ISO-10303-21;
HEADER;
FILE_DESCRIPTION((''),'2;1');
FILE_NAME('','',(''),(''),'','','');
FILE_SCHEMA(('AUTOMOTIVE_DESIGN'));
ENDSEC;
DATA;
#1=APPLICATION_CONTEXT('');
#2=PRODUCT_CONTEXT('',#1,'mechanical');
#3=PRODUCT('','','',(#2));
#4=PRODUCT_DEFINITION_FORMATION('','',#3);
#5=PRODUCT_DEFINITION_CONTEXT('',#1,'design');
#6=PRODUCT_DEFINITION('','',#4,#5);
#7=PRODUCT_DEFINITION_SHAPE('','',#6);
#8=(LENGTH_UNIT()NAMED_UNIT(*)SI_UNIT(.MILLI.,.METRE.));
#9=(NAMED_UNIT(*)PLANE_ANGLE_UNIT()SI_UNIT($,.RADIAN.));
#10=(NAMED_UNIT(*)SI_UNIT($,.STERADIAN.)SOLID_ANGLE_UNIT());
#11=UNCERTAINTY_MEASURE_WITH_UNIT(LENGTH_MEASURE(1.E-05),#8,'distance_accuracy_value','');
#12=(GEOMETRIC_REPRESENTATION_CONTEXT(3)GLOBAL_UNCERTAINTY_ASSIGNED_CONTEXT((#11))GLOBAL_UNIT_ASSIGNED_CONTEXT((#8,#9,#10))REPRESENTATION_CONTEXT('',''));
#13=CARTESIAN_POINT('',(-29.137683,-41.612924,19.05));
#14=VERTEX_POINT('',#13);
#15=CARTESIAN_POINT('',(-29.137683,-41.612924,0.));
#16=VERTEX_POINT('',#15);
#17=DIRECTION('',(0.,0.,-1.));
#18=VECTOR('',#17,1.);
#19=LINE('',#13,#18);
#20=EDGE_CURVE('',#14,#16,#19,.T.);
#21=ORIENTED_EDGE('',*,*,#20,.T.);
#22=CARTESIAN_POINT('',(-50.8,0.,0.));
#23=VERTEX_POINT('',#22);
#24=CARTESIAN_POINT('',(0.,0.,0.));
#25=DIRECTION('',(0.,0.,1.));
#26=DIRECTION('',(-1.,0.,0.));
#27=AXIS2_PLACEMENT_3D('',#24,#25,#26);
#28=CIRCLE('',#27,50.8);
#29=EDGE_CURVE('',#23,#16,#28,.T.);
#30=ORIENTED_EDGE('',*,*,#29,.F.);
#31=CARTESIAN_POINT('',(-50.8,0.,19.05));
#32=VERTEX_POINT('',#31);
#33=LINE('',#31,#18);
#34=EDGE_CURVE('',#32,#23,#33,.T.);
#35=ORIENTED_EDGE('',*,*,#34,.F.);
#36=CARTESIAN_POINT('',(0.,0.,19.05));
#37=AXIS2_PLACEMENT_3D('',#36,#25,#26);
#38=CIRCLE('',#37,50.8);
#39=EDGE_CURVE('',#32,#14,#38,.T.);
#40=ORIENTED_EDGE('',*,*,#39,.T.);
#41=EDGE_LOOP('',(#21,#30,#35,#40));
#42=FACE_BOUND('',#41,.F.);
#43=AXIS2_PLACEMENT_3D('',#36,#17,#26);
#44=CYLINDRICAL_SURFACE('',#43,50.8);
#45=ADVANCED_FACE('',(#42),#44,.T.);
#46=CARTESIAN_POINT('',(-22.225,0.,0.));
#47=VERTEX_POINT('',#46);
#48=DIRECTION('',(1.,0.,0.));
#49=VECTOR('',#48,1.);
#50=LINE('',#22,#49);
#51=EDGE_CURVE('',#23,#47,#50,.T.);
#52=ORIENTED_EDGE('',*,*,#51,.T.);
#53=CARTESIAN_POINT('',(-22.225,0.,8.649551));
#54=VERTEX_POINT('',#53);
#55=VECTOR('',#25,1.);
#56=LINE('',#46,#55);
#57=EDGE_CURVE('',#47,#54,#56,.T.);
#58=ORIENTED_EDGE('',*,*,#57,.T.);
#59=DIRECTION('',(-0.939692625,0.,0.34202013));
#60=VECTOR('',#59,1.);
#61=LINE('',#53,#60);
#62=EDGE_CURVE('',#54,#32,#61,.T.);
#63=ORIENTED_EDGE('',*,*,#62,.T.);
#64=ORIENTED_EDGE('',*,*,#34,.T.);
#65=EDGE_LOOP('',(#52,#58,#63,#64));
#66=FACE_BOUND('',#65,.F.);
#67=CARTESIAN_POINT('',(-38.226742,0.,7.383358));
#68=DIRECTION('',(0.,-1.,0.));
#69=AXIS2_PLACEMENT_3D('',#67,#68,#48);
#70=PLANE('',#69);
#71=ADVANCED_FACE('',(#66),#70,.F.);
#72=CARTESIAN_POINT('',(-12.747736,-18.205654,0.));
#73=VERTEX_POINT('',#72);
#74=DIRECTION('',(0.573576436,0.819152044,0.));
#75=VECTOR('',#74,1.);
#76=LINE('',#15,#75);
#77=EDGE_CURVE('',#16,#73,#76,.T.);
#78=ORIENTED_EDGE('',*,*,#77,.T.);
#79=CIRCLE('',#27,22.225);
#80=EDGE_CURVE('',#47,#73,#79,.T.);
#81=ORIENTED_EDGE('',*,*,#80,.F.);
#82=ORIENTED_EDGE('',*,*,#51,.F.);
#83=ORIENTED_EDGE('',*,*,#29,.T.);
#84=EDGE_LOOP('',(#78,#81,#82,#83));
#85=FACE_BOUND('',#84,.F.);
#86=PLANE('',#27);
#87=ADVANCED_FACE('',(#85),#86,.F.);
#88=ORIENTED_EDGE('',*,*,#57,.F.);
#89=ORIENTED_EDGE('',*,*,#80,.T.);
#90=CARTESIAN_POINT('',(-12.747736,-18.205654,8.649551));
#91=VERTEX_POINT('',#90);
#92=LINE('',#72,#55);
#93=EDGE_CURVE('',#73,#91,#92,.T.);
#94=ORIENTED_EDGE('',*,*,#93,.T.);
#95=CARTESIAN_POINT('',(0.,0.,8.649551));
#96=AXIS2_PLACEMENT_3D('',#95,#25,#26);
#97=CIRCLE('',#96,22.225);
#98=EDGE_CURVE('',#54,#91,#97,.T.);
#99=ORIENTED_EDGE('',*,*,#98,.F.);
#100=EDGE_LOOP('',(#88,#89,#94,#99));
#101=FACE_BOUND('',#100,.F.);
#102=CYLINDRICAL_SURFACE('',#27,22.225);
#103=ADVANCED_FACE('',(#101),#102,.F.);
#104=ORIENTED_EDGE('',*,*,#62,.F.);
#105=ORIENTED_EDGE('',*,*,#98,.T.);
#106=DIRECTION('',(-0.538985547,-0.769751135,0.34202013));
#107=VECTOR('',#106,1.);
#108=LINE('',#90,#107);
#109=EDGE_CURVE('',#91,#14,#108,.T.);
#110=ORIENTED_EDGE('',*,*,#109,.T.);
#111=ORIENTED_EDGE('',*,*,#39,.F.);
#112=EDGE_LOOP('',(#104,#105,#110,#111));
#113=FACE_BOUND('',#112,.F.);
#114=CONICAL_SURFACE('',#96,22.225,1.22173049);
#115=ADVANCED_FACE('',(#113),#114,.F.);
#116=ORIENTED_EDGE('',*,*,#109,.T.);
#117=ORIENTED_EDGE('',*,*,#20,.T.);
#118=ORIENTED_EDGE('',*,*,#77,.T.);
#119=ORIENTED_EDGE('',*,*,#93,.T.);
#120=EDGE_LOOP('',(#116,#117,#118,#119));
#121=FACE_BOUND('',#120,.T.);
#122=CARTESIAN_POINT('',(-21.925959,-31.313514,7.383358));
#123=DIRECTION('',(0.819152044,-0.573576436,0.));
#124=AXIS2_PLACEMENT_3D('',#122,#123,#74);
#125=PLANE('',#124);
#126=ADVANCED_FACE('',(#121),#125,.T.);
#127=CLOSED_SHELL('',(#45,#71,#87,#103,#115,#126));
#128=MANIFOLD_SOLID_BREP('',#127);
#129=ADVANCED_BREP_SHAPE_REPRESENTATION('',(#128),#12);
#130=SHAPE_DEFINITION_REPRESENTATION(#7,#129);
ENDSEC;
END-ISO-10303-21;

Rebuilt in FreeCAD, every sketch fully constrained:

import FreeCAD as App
import Part
import Sketcher

V = App.Vector
Q = App.Units.Quantity


def add_polygon(sketch, points):
    """Adds a closed chain of lines whose ends are joined by coincident constraints."""
    first, n = sketch.GeometryCount, len(points)
    for a, b in zip(points, points[1:] + points[:1]):
        sketch.addGeometry(Part.LineSegment(App.Vector(*a, 0), App.Vector(*b, 0)), False)
    for i in range(n):
        sketch.addConstraint(Sketcher.Constraint("Coincident", first + i, 2, first + (i + 1) % n, 1))

doc = App.newDocument("Part")
body = doc.addObject("PartDesign::Body", "Body")

# Sketch on XZ plane
sketch1 = body.newObject("Sketcher::SketchObject", "Sketch")
sketch1.AttachmentSupport = (doc.getObject("XZ_Plane"), [""])
sketch1.MapMode = "FlatFace"
add_polygon(sketch1, [(-50.8, 19.05), (-50.8, 0), (-22.225, 0), (-22.225, 8.649551)])  # lines 0-3
sketch1.addConstraint([
    Sketcher.Constraint("Vertical", 0),
    Sketcher.Constraint("Horizontal", 1),
    Sketcher.Constraint("Vertical", 2),
    Sketcher.Constraint("PointOnObject", 0, 2, -1),
    Sketcher.Constraint("DistanceX", 0, 2, -1, 1, Q("2 in")),
    Sketcher.Constraint("Angle", 3, Q("160.000001 deg")),
    Sketcher.Constraint("DistanceY", 0, 2, 0, 1, Q("0.75 in")),
    Sketcher.Constraint("DistanceX", 1, 1, 1, 2, Q("1.125 in")),
])
revolution = body.newObject("PartDesign::Revolution", "Revolution")
revolution.Profile = sketch1
revolution.ReferenceAxis = (sketch1, ["V_Axis"])
revolution.Angle = 55

doc.recompute()
